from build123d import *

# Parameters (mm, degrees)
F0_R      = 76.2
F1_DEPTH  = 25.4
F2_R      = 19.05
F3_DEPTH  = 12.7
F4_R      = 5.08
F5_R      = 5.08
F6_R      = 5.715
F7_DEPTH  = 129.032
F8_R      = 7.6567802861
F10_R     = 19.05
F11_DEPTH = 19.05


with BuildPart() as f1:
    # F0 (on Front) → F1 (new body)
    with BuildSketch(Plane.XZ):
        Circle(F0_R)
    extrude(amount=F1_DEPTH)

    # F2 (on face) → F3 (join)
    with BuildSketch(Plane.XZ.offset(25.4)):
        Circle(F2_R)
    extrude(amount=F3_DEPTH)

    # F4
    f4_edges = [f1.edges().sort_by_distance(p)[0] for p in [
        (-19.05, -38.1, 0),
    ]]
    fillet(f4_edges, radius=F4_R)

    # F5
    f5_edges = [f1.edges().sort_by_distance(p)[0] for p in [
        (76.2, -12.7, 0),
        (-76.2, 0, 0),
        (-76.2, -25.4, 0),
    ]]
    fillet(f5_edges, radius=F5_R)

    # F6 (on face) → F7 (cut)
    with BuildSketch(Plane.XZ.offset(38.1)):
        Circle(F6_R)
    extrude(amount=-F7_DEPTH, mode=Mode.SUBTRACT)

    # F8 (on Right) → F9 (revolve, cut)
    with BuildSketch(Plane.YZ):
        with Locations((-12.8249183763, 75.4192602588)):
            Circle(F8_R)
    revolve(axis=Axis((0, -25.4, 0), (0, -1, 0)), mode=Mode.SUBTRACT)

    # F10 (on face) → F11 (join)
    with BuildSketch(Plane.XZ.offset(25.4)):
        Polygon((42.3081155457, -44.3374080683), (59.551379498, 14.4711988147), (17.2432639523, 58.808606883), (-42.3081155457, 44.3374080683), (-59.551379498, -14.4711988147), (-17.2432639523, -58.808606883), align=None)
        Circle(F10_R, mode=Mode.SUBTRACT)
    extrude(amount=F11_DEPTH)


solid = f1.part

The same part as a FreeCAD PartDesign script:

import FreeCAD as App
import Part
import Sketcher
from FreeCAD import Vector
Q = App.Units.Quantity


def edges_at(feature, points):
    """Names of the edges that pass closest to the given points."""
    edges = feature.Shape.Edges
    near = lambda p: min(range(len(edges)), key=lambda i: edges[i].distToShape(Part.Vertex(*p))[0])
    return sorted({f"Edge{near(p) + 1}" for p in points})


def add_polygon(sketch, points):
    """Adds a closed chain of lines whose ends are joined by coincident constraints."""
    first, n = sketch.GeometryCount, len(points)
    for a, b in zip(points, points[1:] + points[:1]):
        sketch.addGeometry(Part.LineSegment(App.Vector(*a, 0), App.Vector(*b, 0)), False)
    for i in range(n):
        sketch.addConstraint(Sketcher.Constraint("Coincident", first + i, 2, first + (i + 1) % n, 1))

doc = App.newDocument("Part")
body = doc.addObject("PartDesign::Body", "Body")

# Sketch on XZ plane
sketch1 = body.newObject("Sketcher::SketchObject", "Sketch")
sketch1.AttachmentSupport = (doc.getObject("XZ_Plane"), [""])
sketch1.MapMode = "FlatFace"
sketch1.addGeometry(Part.Circle(Vector(0, 0, 0), Vector(0, 0, 1), 76), False)
sketch1.addConstraint(Sketcher.Constraint("Coincident", 0, 3, -1, 1))
sketch1.addConstraint(Sketcher.Constraint("Diameter", 0, Q("6 in")))
pad1 = body.newObject("PartDesign::Pad", "Pad")
pad1.Profile = sketch1
pad1.Length = Q("1 in")

# Sketch on XZ plane
sketch2 = body.newObject("Sketcher::SketchObject", "Sketch001")
sketch2.AttachmentSupport = (doc.getObject("XZ_Plane"), [""])
sketch2.MapMode = "FlatFace"
sketch2.AttachmentOffset = App.Placement(Vector(0, 0, 1 * 25.4), App.Rotation())
sketch2.addGeometry(Part.Circle(Vector(0, 0, 0), Vector(0, 0, 1), 19), False)
sketch2.addConstraint(Sketcher.Constraint("Coincident", 0, 3, -1, 1))
sketch2.addConstraint(Sketcher.Constraint("Diameter", 0, Q("1.5 in")))
pad2 = body.newObject("PartDesign::Pad", "Pad001")
pad2.Profile = sketch2
pad2.Length = Q("0.5 in")
doc.recompute()

fillet = body.newObject("PartDesign::Fillet", "Fillet")
fillet.Base = (pad2, edges_at(pad2, [(-19.05, -38.1, 0)]))
fillet.Radius = Q("0.2 in")
doc.recompute()

fillet2 = body.newObject("PartDesign::Fillet", "Fillet001")
fillet2.Base = (fillet, edges_at(fillet, [(76.2, -12.7, 0), (-76.2, 0, 0), (-76.2, -25.4, 0)]))
fillet2.Radius = Q("0.2 in")

# Sketch on XZ plane
sketch3 = body.newObject("Sketcher::SketchObject", "Sketch002")
sketch3.AttachmentSupport = (doc.getObject("XZ_Plane"), [""])
sketch3.MapMode = "FlatFace"
sketch3.AttachmentOffset = App.Placement(Vector(0, 0, 1.5 * 25.4), App.Rotation())
sketch3.addGeometry(Part.Circle(Vector(0, 0, 0), Vector(0, 0, 1), 6), False)
sketch3.addConstraint(Sketcher.Constraint("Coincident", 0, 3, -1, 1))
sketch3.addConstraint(Sketcher.Constraint("Diameter", 0, Q("0.45 in")))
pocket1 = body.newObject("PartDesign::Pocket", "Pocket")
pocket1.Profile = sketch3
pocket1.Length = Q("5.08 in")

# Sketch on YZ plane
sketch4 = body.newObject("Sketcher::SketchObject", "Sketch003")
sketch4.AttachmentSupport = (doc.getObject("YZ_Plane"), [""])
sketch4.MapMode = "FlatFace"
sketch4.addGeometry(Part.Circle(Vector(-13, 75, 0), Vector(0, 0, 1), 8), False)
sketch4.addConstraint(Sketcher.Constraint("Diameter", 0, Q("15.313561 mm")))
sketch4.addConstraint(Sketcher.Constraint("DistanceX", 0, 3, -1, 1, Q("12.824918 mm")))
sketch4.addConstraint(Sketcher.Constraint("DistanceY", -1, 1, 0, 3, Q("75.41926 mm")))
groove = body.newObject("PartDesign::Groove", "Groove")
groove.Profile = sketch4
groove.ReferenceAxis = (sketch4, ["H_Axis"])
groove.Angle = 360

# Sketch on XZ plane
sketch5 = body.newObject("Sketcher::SketchObject", "Sketch004")
sketch5.AttachmentSupport = (doc.getObject("XZ_Plane"), [""])
sketch5.MapMode = "FlatFace"
sketch5.AttachmentOffset = App.Placement(Vector(0, 0, 1 * 25.4), App.Rotation())
add_polygon(sketch5, [(42, -44), (60, 14), (17, 59), (-42, 44), (-60, -14), (-17, -59)])  # lines 0-5
sketch5.addGeometry(Part.Circle(Vector(0, 0, 0), Vector(0, 0, 1), 19), False)  # 6
sketch5.addConstraint(Sketcher.Constraint("Coincident", 6, 3, -1, 1))
sketch5.addConstraint(Sketcher.Constraint("Symmetric", 0, 2, 3, 2, -1, 1))
sketch5.addConstraint(Sketcher.Constraint("Symmetric", 1, 2, 4, 2, -1, 1))
sketch5.addConstraint(Sketcher.Constraint("Symmetric", 2, 2, 5, 2, -1, 1))
sketch5.addConstraint(Sketcher.Constraint("Equal", 0, 1))
sketch5.addConstraint(Sketcher.Constraint("Equal", 1, 2))
sketch5.addConstraint(Sketcher.Constraint("Diameter", 6, Q("1.5 in")))
sketch5.addConstraint(Sketcher.Constraint("DistanceY", -1, 1, 0, 2, Q("14.471199 mm")))
sketch5.addConstraint(Sketcher.Constraint("DistanceY", 2, 2, 1, 2, Q("14.471199 mm")))
sketch5.addConstraint(Sketcher.Constraint("Distance", 0, Q("61.284438 mm")))
sketch5.addConstraint(Sketcher.Constraint("DistanceX", -1, 1, 0, 2, Q("59.551379 mm")))
pad3 = body.newObject("PartDesign::Pad", "Pad002")
pad3.Profile = sketch5
pad3.Length = Q("0.75 in")

doc.recompute()
